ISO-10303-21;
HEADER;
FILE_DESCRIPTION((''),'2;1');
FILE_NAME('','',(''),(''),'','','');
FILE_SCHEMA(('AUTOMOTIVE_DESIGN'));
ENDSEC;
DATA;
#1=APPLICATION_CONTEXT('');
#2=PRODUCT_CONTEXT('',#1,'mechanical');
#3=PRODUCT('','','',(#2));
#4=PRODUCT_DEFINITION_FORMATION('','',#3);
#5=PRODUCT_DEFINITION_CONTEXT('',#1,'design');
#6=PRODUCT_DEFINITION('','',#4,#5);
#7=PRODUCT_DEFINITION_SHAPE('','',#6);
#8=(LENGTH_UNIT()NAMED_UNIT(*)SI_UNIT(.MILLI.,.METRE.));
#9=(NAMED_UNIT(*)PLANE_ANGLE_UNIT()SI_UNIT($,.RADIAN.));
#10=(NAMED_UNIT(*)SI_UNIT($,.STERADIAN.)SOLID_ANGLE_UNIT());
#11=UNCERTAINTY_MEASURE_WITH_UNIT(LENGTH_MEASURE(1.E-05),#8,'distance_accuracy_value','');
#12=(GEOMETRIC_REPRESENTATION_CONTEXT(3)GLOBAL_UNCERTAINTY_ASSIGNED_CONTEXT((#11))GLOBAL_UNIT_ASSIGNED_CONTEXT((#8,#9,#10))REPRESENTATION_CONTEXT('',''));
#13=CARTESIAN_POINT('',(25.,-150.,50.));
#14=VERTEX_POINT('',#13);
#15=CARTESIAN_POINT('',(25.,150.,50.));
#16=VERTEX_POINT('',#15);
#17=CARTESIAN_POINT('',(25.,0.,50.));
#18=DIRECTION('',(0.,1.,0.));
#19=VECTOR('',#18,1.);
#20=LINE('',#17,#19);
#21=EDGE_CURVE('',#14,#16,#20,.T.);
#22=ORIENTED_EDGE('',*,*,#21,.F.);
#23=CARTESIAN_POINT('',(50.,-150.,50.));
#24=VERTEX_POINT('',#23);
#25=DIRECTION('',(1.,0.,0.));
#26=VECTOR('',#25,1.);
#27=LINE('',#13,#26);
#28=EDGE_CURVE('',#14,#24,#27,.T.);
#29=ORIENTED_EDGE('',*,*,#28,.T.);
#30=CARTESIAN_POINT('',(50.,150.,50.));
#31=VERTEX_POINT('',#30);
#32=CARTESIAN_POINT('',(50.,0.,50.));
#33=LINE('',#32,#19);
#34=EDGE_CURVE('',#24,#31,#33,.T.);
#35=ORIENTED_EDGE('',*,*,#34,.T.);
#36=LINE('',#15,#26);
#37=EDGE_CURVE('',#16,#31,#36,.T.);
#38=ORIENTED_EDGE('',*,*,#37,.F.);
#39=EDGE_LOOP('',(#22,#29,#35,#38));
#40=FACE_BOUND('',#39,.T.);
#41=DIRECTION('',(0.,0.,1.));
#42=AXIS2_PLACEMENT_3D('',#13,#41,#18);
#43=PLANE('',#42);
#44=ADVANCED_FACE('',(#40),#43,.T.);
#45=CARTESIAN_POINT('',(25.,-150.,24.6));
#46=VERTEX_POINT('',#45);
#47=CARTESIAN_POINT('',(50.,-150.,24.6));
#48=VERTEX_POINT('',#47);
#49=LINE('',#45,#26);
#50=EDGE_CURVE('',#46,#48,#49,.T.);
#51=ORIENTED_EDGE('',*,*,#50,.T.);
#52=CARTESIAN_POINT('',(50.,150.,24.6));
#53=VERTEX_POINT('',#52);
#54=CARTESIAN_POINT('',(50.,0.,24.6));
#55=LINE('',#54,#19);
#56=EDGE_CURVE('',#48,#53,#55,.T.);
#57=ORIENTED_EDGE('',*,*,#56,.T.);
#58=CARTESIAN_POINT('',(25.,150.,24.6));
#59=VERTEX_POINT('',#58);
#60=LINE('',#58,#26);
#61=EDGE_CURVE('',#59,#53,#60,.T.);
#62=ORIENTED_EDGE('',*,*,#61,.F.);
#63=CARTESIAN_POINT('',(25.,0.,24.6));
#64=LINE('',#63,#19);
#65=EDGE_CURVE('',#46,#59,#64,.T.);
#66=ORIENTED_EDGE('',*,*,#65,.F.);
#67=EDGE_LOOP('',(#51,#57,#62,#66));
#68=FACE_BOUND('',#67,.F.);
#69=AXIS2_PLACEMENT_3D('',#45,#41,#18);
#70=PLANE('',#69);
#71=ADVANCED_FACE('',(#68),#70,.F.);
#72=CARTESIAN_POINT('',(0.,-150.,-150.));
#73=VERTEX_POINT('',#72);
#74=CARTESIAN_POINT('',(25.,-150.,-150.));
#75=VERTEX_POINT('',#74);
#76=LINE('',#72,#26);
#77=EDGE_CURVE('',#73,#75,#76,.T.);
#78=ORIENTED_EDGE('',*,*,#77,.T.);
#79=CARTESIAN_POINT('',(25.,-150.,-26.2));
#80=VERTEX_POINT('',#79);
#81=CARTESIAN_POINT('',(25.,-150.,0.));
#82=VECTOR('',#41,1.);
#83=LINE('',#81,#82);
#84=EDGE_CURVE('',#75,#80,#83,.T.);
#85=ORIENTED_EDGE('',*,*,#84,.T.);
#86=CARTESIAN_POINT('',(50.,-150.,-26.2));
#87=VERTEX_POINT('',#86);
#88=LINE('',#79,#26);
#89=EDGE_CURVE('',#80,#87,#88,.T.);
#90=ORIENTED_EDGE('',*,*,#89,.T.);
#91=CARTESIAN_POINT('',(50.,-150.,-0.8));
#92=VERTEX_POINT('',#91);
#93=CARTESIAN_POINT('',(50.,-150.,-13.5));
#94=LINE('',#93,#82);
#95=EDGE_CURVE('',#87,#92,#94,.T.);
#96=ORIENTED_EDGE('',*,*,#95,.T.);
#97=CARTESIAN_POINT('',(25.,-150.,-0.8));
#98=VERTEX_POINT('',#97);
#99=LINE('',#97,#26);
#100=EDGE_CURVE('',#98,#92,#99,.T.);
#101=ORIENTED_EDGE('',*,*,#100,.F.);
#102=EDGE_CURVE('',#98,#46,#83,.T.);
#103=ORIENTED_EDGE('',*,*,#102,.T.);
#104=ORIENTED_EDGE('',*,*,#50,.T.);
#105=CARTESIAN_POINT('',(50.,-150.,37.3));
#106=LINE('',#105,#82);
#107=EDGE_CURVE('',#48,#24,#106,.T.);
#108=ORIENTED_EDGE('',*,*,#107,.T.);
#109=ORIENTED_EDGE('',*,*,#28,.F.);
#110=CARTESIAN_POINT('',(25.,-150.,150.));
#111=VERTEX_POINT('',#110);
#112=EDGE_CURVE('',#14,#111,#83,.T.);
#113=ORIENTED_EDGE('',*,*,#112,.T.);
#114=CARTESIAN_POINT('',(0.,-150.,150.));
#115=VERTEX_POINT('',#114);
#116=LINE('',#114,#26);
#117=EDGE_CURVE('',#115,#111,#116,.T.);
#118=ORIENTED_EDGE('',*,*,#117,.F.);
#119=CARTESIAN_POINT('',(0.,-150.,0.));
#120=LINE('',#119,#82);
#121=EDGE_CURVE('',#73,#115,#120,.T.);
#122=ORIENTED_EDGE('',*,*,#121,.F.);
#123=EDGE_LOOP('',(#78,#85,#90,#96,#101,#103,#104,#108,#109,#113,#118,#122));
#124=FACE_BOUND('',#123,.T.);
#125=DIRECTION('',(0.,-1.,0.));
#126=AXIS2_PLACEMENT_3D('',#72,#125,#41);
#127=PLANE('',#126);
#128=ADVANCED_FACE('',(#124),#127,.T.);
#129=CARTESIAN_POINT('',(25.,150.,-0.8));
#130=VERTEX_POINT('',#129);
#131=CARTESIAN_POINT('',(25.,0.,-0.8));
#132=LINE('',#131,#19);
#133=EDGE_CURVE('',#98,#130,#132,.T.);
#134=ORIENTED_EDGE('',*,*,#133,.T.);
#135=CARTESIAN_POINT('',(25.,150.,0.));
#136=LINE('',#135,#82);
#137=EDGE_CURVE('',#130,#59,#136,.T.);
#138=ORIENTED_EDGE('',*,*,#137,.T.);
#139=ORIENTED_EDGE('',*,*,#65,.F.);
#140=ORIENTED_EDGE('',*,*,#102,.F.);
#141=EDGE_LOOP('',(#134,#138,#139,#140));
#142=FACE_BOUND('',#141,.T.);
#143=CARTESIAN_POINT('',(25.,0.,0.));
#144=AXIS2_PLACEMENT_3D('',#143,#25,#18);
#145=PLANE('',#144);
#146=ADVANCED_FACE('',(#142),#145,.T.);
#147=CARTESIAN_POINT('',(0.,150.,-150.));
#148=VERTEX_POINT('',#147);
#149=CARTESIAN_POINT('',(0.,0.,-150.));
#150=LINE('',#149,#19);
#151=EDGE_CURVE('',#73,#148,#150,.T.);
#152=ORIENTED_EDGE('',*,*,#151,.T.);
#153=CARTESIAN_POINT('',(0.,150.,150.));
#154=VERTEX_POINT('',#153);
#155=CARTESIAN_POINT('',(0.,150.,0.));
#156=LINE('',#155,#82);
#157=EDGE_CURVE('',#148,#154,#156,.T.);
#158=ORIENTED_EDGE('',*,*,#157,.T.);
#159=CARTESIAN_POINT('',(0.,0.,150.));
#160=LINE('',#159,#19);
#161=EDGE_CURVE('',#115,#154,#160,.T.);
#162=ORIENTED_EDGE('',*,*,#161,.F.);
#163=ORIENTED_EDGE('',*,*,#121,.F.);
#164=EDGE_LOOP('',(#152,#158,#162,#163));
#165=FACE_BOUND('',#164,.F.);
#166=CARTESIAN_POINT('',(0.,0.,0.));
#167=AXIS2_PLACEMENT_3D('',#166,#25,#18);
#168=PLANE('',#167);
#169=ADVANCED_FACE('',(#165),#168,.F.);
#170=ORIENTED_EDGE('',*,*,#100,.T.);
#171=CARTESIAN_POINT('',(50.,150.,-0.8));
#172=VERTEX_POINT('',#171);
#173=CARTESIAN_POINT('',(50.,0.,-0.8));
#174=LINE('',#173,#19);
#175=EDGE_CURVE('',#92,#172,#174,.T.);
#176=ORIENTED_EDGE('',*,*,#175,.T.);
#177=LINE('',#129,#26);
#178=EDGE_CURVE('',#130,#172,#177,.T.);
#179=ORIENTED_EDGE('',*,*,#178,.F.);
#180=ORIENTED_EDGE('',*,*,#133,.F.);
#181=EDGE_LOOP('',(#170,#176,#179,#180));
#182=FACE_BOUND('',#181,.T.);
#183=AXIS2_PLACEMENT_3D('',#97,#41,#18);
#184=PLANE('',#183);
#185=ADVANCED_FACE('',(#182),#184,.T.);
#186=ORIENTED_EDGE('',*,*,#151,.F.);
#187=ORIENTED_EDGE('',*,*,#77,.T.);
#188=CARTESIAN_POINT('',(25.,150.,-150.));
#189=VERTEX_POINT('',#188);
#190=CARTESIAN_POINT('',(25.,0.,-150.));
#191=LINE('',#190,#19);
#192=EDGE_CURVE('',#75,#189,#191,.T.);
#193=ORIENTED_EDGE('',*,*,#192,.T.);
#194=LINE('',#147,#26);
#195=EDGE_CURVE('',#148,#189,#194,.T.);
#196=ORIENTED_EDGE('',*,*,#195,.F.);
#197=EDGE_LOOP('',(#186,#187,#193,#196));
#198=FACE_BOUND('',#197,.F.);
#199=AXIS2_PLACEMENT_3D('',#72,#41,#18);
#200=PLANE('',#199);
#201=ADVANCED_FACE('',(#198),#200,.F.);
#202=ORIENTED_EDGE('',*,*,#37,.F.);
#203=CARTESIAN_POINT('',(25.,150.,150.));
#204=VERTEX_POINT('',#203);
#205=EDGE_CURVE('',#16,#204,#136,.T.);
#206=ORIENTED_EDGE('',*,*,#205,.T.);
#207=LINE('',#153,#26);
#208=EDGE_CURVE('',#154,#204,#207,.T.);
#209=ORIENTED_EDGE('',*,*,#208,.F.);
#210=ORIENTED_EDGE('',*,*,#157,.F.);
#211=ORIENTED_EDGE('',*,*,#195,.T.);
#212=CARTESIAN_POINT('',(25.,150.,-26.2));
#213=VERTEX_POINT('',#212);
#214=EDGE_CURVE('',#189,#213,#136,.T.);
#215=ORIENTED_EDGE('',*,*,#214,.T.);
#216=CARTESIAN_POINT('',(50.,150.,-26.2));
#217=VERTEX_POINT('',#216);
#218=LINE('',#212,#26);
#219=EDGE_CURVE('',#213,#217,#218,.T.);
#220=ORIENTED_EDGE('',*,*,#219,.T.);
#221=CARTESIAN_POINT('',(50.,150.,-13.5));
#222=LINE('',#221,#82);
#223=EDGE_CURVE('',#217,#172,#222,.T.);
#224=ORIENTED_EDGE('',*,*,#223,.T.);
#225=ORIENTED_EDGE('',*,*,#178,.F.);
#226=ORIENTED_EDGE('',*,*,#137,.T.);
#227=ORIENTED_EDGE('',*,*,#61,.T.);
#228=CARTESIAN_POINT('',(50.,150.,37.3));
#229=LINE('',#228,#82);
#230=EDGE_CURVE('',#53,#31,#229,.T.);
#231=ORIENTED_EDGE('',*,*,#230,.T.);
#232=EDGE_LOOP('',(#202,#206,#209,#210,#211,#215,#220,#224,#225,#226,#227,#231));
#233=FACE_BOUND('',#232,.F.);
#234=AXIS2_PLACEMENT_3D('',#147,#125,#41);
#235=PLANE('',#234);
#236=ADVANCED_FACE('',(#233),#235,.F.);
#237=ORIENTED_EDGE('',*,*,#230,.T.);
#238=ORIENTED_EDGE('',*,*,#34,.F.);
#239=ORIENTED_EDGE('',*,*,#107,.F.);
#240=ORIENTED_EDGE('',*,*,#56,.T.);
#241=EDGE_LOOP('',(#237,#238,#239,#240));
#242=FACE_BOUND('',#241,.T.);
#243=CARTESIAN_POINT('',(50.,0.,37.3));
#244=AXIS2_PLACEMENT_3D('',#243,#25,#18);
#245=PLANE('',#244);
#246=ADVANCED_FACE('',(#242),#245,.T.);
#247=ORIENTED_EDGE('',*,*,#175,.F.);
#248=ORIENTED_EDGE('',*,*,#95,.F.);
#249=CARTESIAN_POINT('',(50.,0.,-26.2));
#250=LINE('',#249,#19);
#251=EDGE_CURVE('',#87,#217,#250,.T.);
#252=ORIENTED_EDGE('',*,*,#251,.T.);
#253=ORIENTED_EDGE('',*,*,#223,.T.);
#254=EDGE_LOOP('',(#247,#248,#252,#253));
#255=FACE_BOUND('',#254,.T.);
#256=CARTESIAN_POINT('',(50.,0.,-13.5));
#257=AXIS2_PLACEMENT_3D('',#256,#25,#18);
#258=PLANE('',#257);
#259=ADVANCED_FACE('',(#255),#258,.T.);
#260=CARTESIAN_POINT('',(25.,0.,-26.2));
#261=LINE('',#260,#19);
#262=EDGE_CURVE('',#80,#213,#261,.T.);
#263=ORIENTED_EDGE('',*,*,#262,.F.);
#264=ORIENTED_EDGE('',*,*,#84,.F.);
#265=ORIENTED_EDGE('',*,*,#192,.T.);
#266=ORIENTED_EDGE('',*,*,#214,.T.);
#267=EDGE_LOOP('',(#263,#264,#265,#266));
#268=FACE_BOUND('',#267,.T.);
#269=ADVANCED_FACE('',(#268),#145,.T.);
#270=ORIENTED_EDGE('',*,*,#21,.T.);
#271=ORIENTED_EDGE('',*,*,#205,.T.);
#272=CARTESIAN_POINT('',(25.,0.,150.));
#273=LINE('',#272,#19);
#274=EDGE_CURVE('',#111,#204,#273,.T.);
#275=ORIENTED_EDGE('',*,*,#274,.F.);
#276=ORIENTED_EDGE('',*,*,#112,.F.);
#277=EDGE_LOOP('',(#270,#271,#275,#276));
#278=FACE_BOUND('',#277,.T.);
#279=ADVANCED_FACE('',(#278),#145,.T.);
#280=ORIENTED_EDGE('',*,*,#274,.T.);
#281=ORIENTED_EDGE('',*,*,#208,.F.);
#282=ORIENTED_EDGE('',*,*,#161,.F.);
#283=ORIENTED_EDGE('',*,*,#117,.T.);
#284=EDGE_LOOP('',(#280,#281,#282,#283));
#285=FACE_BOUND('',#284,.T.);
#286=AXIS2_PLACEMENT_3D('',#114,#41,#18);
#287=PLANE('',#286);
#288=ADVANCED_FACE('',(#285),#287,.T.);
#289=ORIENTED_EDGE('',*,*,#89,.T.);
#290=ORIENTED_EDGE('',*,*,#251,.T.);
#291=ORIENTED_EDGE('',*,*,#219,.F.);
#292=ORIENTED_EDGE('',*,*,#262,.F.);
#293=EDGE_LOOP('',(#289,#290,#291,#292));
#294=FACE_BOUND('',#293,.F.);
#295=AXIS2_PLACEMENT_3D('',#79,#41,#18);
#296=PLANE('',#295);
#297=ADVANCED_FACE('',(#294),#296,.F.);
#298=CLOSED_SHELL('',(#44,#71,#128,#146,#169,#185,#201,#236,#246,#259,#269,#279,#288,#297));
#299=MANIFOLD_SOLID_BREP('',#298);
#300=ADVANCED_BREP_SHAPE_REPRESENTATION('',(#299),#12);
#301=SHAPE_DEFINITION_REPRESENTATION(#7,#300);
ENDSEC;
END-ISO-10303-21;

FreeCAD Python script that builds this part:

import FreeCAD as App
import Part
import Sketcher

V = App.Vector


def add_polygon(sketch, points):
    """Adds a closed chain of lines whose ends are joined by coincident constraints."""
    first, n = sketch.GeometryCount, len(points)
    for a, b in zip(points, points[1:] + points[:1]):
        sketch.addGeometry(Part.LineSegment(App.Vector(*a, 0), App.Vector(*b, 0)), False)
    for i in range(n):
        sketch.addConstraint(Sketcher.Constraint("Coincident", first + i, 2, first + (i + 1) % n, 1))

doc = App.newDocument("Part")
body = doc.addObject("PartDesign::Body", "Body")

sketch1 = doc.addObject("Sketcher::SketchObject", "Sketch")
body.addObject(sketch1)
sketch1.AttachmentSupport = (doc.YZ_Plane, [""])
sketch1.MapMode = "FlatFace"
add_polygon(sketch1, [(-150, 150), (-150, -150), (150, -150), (150, 150)])
sketch1.addConstraint(Sketcher.Constraint("Vertical", 0))
sketch1.addConstraint(Sketcher.Constraint("Horizontal", 1))
sketch1.addConstraint(Sketcher.Constraint("Vertical", 2))
sketch1.addConstraint(Sketcher.Constraint("Horizontal", 3))
sketch1.addConstraint(Sketcher.Constraint("Symmetric", 0, 2, 2, 2, -1, 1))
sketch1.addConstraint(Sketcher.Constraint("Equal", 3, 0))
sketch1.addConstraint(Sketcher.Constraint("DistanceX", 1, 1, 1, 2, 300.0))
pad1 = doc.addObject("PartDesign::Pad", "Pad")
body.addObject(pad1)
pad1.Profile = sketch1
pad1.Length = 25

sketch2 = doc.addObject("Sketcher::SketchObject", "Sketch001")
body.addObject(sketch2)
sketch2.AttachmentSupport = (doc.YZ_Plane, [""])
sketch2.MapMode = "FlatFace"
sketch2.AttachmentOffset = App.Placement(V(0, 0, 25), App.Rotation())
add_polygon(sketch2, [(-150, -1), (-150, -26), (150, -26), (150, -1)])
add_polygon(sketch2, [(-150, 50), (-150, 25), (150, 25), (150, 50)])
sketch2.addConstraint(Sketcher.Constraint("Vertical", 0))
sketch2.addConstraint(Sketcher.Constraint("Horizontal", 1))
sketch2.addConstraint(Sketcher.Constraint("Vertical", 2))
sketch2.addConstraint(Sketcher.Constraint("Horizontal", 3))
sketch2.addConstraint(Sketcher.Constraint("Vertical", 4))
sketch2.addConstraint(Sketcher.Constraint("Horizontal", 5))
sketch2.addConstraint(Sketcher.Constraint("Vertical", 6))
sketch2.addConstraint(Sketcher.Constraint("Horizontal", 7))
sketch2.addConstraint(Sketcher.Constraint("Vertical", 3, 2, 4, 2))
sketch2.addConstraint(Sketcher.Constraint("Vertical", 2, 2, 5, 2))
sketch2.addConstraint(Sketcher.Constraint("Equal", 2, 4))
sketch2.addConstraint(Sketcher.Constraint("DistanceX", 1, 1, 1, 2, 300.0))
sketch2.addConstraint(Sketcher.Constraint("DistanceY", 0, 2, 0, 1, 25.4))
sketch2.addConstraint(Sketcher.Constraint("DistanceX", 0, 2, -1, 1, 150.0))
sketch2.addConstraint(Sketcher.Constraint("DistanceY", -1, 1, 6, 2, 50.0))
sketch2.addConstraint(Sketcher.Constraint("DistanceY", 0, 2, -1, 1, 26.2))
pad2 = doc.addObject("PartDesign::Pad", "Pad001")
body.addObject(pad2)
pad2.Profile = sketch2
pad2.Length = 25

doc.recompute()
